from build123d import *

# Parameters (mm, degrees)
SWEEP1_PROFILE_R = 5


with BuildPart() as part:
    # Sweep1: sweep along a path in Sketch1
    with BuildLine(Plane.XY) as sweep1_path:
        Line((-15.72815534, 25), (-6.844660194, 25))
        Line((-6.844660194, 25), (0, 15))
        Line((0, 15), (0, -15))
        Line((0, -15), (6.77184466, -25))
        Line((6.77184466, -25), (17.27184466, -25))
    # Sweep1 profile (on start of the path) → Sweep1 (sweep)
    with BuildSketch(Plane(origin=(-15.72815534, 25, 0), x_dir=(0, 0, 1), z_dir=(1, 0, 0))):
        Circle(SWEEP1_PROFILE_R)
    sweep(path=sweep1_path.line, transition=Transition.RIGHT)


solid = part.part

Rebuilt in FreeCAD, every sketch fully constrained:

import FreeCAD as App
import Part
import Sketcher
Q = App.Units.Quantity

doc = App.newDocument("Part")
body = doc.addObject("PartDesign::Body", "Body")

# Sketch on YZ plane
sketch1 = doc.addObject("Sketcher::SketchObject", "Sketch")
body.addObject(sketch1)
sketch1.AttachmentSupport = (doc.YZ_Plane, [""])
sketch1.MapMode = "FlatFace"
sketch1.AttachmentOffset = App.Placement(App.Vector(0, 0, -15.728155), App.Rotation())
sketch1.addGeometry(Part.Circle(App.Vector(25, 0, 0), App.Vector(0, 0, 1), 5), False)
sketch1.addConstraint([
    Sketcher.Constraint("PointOnObject", 0, 3, -1),
    Sketcher.Constraint("Diameter", 0, Q("10 mm")),
    Sketcher.Constraint("DistanceX", -1, 1, 0, 3, Q("25 mm")),
])

# Sketch on XY plane
sketch2 = doc.addObject("Sketcher::SketchObject", "Sketch001")
body.addObject(sketch2)
sketch2.AttachmentSupport = (doc.XY_Plane, [""])
sketch2.MapMode = "FlatFace"
sketch2.addGeometry([
    Part.LineSegment(App.Vector(-16, 25, 0), App.Vector(-7, 25, 0)),  # 0
    Part.LineSegment(App.Vector(-7, 25, 0), App.Vector(0, 15, 0)),  # 1
    Part.LineSegment(App.Vector(0, 15, 0), App.Vector(0, -15, 0)),  # 2
    Part.LineSegment(App.Vector(0, -15, 0), App.Vector(7, -25, 0)),  # 3
    Part.LineSegment(App.Vector(7, -25, 0), App.Vector(17, -25, 0)),  # 4
], False)
sketch2.addConstraint([
    Sketcher.Constraint("Coincident", 0, 2, 1, 1),
    Sketcher.Constraint("Coincident", 1, 2, 2, 1),
    Sketcher.Constraint("Coincident", 2, 2, 3, 1),
    Sketcher.Constraint("Coincident", 3, 2, 4, 1),
    Sketcher.Constraint("Horizontal", 0),
    Sketcher.Constraint("Vertical", 2),
    Sketcher.Constraint("Horizontal", 4),
    Sketcher.Constraint("Symmetric", 1, 2, 2, 2, -1, 1),
    Sketcher.Constraint("DistanceY", 2, 2, 2, 1, Q("30 mm")),
    Sketcher.Constraint("DistanceX", 4, 1, 4, 2, Q("10.5 mm")),
    Sketcher.Constraint("DistanceY", -1, 1, 0, 1, Q("25 mm")),
    Sketcher.Constraint("DistanceY", 3, 2, -1, 1, Q("25 mm")),
    Sketcher.Constraint("DistanceX", 0, 1, 4, 2, Q("33 mm")),
    Sketcher.Constraint("DistanceX", 0, 1, 0, 2, Q("8.883495 mm")),
    Sketcher.Constraint("DistanceX", 0, 2, -1, 1, Q("6.84466 mm")),
])
doc.recompute()

additivepipe = doc.addObject("PartDesign::AdditivePipe", "AdditivePipe")
body.addObject(additivepipe)
additivepipe.Profile = sketch1
additivepipe.Spine = (sketch2, ["Edge1", "Edge2", "Edge3", "Edge4", "Edge5"])
additivepipe.Transition = "Right corner"

doc.recompute()
